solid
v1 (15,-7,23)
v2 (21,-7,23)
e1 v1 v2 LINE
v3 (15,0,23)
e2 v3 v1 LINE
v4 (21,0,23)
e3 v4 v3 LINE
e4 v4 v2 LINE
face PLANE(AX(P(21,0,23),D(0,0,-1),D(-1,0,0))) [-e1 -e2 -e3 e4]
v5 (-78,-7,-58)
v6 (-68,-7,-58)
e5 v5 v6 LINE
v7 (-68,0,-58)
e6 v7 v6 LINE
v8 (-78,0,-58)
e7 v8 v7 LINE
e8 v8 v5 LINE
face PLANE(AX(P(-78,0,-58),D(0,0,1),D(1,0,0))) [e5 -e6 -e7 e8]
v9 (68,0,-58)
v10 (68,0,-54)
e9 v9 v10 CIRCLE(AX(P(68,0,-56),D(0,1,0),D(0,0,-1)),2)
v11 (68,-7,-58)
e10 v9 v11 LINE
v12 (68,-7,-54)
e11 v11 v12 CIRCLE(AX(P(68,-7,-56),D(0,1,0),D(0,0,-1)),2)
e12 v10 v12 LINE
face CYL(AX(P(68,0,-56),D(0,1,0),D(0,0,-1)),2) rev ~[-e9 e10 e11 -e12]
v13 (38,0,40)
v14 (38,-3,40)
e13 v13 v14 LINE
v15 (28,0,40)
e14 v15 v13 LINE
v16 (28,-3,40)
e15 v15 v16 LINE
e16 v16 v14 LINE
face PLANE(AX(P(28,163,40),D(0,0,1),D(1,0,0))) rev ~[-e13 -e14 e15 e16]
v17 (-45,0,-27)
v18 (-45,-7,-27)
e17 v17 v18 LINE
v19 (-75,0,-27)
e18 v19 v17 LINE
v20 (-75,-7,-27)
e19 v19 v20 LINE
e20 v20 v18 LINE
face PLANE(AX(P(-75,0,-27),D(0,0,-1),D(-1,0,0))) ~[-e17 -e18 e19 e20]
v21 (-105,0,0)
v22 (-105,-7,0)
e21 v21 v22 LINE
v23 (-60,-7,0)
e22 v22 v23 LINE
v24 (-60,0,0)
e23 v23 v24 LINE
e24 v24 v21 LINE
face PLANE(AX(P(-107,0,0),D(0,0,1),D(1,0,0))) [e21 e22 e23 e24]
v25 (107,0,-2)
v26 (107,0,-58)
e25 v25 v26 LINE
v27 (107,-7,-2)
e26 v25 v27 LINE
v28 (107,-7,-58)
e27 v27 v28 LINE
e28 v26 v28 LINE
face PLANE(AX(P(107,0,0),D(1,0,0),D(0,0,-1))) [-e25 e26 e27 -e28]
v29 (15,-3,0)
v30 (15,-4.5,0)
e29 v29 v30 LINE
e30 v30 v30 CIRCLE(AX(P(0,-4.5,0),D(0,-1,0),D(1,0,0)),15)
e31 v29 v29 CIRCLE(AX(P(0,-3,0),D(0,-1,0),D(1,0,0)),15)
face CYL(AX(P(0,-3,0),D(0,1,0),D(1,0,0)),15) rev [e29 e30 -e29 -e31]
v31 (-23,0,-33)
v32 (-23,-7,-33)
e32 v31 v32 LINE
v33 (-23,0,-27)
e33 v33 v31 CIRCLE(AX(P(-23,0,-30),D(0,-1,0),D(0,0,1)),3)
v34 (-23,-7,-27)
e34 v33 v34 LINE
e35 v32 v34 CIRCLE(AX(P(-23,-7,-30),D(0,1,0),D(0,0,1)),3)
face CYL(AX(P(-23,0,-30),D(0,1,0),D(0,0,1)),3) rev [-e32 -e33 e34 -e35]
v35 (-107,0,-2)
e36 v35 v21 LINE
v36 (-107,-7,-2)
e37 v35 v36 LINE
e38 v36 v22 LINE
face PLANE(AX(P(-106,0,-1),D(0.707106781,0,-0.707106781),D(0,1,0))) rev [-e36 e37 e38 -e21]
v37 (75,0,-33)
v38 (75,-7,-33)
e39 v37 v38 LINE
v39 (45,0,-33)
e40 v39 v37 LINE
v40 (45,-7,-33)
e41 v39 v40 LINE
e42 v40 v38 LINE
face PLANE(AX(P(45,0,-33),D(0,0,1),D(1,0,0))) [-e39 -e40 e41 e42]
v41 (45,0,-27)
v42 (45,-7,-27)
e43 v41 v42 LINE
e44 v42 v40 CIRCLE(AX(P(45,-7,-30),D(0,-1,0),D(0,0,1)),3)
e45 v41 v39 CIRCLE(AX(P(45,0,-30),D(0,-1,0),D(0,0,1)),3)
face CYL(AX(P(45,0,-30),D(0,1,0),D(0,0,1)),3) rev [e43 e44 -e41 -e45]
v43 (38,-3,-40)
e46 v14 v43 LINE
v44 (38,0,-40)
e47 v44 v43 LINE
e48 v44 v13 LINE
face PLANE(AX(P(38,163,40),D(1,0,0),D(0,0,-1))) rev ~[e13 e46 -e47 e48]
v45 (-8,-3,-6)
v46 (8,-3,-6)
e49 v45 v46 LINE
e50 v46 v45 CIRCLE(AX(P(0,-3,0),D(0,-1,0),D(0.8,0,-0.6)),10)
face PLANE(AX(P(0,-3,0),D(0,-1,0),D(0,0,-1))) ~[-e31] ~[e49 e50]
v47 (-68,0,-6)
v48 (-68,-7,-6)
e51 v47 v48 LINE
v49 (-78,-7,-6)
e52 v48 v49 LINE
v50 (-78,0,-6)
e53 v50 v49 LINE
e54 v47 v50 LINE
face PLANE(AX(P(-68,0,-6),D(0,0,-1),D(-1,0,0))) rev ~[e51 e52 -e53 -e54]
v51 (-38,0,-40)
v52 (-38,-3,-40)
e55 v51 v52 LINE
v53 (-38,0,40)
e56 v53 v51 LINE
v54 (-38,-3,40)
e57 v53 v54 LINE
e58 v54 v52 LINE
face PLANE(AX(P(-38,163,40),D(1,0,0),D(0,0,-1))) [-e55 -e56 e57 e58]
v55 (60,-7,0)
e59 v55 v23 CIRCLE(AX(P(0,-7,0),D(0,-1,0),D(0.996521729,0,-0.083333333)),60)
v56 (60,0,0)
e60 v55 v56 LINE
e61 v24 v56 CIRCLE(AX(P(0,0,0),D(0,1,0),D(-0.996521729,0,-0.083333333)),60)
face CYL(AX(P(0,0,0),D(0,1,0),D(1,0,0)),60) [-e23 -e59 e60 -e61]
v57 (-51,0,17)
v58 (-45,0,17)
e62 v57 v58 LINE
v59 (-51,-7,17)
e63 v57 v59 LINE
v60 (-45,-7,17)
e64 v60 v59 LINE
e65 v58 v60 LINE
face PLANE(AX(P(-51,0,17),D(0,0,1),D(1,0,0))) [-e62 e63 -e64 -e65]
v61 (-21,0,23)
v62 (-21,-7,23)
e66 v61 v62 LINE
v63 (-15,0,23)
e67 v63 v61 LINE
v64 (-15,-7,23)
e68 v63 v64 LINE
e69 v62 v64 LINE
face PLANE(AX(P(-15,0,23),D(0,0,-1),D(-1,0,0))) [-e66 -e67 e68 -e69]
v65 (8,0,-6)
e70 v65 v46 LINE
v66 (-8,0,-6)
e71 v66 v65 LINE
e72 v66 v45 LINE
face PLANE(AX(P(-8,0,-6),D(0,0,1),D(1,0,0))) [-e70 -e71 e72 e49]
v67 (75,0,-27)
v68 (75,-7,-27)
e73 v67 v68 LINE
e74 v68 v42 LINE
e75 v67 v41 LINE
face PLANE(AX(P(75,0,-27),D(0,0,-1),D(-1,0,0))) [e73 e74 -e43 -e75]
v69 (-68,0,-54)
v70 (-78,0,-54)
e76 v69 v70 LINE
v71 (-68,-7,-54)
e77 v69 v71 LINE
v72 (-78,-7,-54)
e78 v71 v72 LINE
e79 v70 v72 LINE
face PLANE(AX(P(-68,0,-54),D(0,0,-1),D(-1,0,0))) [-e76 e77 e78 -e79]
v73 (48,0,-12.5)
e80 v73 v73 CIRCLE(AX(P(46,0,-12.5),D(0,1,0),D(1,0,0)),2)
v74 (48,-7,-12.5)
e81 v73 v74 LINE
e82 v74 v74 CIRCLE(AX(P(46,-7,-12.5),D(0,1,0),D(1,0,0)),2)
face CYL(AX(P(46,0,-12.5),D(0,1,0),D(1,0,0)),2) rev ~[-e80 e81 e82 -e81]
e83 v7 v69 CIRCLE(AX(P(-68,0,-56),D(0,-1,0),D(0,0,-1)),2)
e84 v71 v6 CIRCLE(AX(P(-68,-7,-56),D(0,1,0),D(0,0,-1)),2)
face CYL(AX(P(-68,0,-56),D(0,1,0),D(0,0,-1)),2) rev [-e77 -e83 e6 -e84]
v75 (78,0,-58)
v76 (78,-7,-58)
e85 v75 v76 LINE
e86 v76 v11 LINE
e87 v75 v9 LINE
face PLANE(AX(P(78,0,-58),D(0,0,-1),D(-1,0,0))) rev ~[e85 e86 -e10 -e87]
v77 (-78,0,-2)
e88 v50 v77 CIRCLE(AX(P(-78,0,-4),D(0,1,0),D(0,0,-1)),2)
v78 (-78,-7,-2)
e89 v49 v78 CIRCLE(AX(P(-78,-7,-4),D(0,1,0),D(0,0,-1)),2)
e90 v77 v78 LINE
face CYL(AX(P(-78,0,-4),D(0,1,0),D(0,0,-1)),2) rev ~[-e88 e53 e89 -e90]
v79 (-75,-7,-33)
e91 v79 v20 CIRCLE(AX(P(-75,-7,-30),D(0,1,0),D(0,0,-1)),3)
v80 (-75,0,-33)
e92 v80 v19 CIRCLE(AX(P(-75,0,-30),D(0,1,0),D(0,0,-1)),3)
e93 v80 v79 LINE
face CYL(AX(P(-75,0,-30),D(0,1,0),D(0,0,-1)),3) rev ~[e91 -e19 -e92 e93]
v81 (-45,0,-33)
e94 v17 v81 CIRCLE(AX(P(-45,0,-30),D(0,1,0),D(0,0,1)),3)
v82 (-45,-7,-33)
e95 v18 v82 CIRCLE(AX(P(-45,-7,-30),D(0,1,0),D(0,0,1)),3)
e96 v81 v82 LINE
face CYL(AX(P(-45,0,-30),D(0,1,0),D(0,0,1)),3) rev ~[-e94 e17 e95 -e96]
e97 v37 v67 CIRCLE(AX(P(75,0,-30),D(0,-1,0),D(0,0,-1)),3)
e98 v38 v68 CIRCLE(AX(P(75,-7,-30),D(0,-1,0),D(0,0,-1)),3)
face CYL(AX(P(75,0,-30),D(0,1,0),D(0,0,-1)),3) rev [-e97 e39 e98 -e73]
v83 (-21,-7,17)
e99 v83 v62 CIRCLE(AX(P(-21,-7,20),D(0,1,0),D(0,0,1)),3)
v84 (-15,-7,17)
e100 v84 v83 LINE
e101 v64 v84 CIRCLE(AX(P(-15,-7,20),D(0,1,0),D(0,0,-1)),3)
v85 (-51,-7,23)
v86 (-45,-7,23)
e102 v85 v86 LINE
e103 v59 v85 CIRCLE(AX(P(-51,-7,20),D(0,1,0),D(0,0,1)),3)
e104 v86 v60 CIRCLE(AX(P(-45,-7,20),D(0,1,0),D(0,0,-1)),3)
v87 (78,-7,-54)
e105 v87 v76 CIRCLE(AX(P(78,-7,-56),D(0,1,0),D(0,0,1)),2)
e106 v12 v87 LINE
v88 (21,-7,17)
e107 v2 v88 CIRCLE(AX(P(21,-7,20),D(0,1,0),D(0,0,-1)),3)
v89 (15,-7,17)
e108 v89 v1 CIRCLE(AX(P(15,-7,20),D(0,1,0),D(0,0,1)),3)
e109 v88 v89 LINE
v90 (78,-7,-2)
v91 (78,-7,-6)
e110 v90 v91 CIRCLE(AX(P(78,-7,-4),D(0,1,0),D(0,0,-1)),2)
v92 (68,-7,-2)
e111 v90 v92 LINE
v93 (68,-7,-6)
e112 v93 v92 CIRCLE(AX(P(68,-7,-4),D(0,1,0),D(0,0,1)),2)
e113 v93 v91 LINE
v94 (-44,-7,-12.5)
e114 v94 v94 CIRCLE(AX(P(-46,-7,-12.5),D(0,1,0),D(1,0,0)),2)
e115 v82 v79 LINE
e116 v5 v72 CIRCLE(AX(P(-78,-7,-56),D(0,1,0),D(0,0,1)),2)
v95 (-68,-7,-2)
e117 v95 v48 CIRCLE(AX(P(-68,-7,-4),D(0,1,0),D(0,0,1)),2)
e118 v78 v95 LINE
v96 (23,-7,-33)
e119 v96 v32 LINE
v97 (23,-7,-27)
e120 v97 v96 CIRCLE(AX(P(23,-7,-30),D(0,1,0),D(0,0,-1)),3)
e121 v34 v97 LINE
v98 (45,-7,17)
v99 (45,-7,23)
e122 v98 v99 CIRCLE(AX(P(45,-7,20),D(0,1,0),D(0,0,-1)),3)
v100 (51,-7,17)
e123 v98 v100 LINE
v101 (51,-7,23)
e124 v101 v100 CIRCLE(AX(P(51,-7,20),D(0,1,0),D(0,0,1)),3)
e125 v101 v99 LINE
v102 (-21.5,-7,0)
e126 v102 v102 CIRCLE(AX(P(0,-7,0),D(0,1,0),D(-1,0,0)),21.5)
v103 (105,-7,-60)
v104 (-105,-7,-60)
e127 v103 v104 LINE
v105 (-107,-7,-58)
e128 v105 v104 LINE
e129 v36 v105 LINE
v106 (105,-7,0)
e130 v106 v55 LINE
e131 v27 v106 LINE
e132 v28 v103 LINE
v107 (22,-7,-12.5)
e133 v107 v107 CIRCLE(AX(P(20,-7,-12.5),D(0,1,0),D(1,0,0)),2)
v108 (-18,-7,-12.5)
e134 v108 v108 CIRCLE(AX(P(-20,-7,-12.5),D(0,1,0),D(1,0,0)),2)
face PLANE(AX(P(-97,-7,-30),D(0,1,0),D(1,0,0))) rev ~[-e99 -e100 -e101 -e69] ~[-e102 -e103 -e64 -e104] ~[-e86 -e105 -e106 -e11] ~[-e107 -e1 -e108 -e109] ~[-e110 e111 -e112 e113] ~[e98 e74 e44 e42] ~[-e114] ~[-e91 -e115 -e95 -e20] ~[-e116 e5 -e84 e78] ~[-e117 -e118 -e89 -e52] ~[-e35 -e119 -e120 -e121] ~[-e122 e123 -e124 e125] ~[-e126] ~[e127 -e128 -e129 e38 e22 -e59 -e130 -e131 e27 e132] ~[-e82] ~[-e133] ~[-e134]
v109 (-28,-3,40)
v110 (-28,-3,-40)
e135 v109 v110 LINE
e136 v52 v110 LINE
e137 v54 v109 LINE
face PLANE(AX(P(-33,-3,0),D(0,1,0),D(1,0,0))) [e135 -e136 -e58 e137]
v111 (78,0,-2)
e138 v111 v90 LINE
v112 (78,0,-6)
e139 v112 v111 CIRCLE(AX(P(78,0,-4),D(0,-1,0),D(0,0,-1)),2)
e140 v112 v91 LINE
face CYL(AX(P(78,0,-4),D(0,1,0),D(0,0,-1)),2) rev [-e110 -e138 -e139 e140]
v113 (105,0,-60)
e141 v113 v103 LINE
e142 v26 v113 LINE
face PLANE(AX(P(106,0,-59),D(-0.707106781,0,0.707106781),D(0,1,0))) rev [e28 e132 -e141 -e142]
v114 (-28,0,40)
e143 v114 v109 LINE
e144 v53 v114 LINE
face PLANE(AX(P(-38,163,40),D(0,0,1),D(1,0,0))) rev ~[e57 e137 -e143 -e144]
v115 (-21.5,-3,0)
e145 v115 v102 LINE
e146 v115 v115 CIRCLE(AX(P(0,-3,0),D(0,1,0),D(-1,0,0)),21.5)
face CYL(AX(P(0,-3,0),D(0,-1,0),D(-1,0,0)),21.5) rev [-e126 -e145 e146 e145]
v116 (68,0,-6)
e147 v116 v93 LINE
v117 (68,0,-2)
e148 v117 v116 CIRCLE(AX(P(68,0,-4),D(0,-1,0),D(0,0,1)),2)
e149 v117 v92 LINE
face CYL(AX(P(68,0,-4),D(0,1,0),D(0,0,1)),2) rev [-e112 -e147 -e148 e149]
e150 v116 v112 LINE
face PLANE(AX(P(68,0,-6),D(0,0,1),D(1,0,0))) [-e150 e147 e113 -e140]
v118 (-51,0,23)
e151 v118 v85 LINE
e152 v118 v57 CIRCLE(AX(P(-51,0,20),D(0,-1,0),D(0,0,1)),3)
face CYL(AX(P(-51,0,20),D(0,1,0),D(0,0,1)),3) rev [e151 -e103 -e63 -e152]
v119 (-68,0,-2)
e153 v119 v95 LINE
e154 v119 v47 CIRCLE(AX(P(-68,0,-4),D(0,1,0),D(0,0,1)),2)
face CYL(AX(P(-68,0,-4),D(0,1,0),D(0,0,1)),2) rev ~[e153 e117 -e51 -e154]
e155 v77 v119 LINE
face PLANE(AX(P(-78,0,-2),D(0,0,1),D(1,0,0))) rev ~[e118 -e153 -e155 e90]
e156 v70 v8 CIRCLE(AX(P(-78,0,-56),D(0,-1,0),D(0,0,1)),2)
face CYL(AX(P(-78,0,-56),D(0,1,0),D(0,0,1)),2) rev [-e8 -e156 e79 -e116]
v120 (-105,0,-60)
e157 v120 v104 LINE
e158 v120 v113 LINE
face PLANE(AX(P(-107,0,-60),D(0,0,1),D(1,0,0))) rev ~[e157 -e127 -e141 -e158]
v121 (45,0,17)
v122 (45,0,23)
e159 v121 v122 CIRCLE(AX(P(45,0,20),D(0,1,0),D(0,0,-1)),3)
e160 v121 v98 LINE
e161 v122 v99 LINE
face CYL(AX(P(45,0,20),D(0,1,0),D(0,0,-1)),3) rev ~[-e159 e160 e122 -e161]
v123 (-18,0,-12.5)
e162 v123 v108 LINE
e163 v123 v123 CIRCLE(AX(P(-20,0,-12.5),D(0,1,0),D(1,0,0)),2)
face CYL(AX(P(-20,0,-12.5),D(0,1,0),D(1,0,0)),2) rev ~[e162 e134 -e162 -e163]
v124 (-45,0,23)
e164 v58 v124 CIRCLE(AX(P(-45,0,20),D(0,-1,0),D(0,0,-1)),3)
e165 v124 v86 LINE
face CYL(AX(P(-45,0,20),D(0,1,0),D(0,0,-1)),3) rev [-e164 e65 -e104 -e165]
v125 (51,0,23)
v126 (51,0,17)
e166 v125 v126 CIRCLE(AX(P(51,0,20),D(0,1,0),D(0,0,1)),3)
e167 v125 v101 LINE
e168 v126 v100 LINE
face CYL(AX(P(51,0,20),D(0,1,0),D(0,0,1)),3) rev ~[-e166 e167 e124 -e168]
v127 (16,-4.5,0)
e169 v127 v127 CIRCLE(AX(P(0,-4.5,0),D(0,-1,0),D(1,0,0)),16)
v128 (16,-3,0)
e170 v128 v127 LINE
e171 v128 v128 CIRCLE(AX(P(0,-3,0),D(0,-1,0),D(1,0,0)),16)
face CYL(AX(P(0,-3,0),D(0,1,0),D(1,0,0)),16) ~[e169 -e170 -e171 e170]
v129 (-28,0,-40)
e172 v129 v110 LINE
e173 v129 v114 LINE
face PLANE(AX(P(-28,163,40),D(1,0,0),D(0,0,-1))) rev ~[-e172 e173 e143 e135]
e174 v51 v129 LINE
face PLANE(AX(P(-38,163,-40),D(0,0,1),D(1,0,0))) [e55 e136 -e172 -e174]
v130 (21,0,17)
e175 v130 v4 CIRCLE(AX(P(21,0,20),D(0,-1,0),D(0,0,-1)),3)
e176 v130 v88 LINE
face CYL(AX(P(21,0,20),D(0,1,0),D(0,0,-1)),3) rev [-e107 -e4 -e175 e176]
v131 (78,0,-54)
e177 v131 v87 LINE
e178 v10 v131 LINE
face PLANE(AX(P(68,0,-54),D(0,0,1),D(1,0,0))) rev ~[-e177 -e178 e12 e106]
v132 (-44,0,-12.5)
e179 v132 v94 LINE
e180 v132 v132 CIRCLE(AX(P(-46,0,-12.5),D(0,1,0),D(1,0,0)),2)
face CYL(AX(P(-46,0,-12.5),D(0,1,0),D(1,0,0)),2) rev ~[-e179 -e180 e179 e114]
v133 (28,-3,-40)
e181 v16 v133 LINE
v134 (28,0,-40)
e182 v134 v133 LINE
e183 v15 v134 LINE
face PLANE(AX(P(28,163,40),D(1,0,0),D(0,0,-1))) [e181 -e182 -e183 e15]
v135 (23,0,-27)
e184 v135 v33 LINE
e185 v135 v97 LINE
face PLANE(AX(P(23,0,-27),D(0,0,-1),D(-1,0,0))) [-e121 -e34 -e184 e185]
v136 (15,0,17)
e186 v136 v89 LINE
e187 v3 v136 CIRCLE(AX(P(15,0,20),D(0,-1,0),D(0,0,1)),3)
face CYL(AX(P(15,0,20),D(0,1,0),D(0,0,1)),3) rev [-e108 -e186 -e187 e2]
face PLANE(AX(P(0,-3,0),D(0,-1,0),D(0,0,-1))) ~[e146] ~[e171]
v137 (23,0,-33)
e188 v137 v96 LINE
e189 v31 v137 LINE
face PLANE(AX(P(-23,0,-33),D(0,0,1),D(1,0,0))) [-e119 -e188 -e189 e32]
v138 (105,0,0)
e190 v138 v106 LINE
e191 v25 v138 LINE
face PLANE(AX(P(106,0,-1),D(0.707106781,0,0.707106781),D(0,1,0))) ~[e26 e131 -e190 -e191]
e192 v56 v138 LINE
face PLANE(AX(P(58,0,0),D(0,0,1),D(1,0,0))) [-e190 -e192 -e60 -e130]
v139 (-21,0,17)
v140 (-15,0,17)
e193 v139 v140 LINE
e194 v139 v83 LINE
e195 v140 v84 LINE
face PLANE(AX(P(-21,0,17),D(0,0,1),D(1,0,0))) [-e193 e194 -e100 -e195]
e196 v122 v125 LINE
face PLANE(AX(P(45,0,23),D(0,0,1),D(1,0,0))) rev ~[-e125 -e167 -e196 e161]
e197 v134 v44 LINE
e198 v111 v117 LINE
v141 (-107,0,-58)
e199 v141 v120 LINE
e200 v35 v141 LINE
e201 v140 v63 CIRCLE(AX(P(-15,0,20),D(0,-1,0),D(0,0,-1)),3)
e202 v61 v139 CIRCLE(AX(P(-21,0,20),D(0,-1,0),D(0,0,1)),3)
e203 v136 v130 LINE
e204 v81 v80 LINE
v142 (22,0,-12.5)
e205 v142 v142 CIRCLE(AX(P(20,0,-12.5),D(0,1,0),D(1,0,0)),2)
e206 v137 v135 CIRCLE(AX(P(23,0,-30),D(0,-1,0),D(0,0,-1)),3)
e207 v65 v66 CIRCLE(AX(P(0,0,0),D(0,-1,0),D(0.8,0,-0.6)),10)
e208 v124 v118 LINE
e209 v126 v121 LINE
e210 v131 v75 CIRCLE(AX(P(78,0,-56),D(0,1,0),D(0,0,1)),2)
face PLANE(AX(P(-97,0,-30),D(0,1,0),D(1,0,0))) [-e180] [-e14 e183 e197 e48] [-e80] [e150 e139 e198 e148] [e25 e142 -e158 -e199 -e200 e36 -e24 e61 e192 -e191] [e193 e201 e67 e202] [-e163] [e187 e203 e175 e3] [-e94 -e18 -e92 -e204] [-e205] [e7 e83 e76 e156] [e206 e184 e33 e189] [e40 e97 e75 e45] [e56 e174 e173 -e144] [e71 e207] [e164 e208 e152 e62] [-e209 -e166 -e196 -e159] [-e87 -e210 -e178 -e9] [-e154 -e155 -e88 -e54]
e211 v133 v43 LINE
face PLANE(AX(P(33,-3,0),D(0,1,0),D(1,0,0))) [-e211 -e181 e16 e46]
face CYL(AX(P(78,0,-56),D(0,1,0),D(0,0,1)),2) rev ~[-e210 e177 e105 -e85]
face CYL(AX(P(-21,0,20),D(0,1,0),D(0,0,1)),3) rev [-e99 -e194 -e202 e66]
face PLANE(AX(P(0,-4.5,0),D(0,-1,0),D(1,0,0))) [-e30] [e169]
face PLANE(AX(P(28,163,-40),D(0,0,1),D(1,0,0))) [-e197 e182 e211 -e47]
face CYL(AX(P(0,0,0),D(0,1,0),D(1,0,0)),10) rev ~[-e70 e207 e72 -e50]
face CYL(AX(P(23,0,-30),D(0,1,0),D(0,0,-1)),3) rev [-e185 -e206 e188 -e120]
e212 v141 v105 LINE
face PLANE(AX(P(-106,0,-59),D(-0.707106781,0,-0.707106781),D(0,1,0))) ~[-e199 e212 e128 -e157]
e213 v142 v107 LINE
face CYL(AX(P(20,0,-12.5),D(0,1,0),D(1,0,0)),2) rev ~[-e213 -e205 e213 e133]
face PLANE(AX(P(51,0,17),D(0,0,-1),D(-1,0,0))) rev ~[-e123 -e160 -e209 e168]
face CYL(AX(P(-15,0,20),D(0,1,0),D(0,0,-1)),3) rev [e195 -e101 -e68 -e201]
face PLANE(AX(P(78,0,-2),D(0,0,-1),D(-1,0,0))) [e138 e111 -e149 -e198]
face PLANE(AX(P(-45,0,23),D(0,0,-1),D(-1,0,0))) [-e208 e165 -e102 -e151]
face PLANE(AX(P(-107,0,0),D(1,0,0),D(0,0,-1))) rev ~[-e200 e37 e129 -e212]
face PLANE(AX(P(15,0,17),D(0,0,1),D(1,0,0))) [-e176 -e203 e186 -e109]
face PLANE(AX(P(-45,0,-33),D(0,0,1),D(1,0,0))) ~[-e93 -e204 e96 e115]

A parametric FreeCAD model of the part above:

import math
import FreeCAD as App
import Part
import Sketcher
from FreeCAD import Vector


def edges_at(feature, points):
    """Names of the edges that pass closest to the given points."""
    edges = feature.Shape.Edges
    near = lambda p: min(range(len(edges)), key=lambda i: edges[i].distToShape(Part.Vertex(*p))[0])
    return sorted({f"Edge{near(p) + 1}" for p in points})

doc = App.newDocument("Part")
body = doc.addObject("PartDesign::Body", "Body")

sketch1 = body.newObject("Sketcher::SketchObject", "Sketch")
sketch1.AttachmentSupport = (doc.getObject("XZ_Plane"), [""])
sketch1.MapMode = "FlatFace"
sketch1.addGeometry(Part.Circle(Vector(0, 0, 0), Vector(0, 0, 1), 60), False)
sketch1.addConstraint([
    Sketcher.Constraint("Coincident", 0, 3, -1, 1),
    Sketcher.Constraint("Diameter", 0, 120.0),
])
pad1 = body.newObject("PartDesign::Pad", "Pad")
pad1.Profile = sketch1
pad1.Length = 7

sketch2 = body.newObject("Sketcher::SketchObject", "Sketch001")
sketch2.AttachmentSupport = (doc.getObject("XZ_Plane"), [""])
sketch2.MapMode = "FlatFace"
sketch2.addGeometry([
    Part.LineSegment(Vector(-38, -40, 0), Vector(-38, 40, 0)),
    Part.LineSegment(Vector(-38, 40, 0), Vector(-28, 40, 0)),
    Part.LineSegment(Vector(-28, 40, 0), Vector(-28, -40, 0)),
    Part.LineSegment(Vector(-28, -40, 0), Vector(-38, -40, 0)),
    Part.LineSegment(Vector(28, -40, 0), Vector(28, 40, 0)),
    Part.LineSegment(Vector(28, 40, 0), Vector(38, 40, 0)),
    Part.LineSegment(Vector(38, 40, 0), Vector(38, -40, 0)),
    Part.LineSegment(Vector(38, -40, 0), Vector(28, -40, 0)),
], False)
sketch2.addConstraint([
    Sketcher.Constraint("Coincident", 0, 2, 1, 1),
    Sketcher.Constraint("Coincident", 1, 2, 2, 1),
    Sketcher.Constraint("Coincident", 2, 2, 3, 1),
    Sketcher.Constraint("Coincident", 3, 2, 0, 1),
    Sketcher.Constraint("Coincident", 4, 2, 5, 1),
    Sketcher.Constraint("Coincident", 5, 2, 6, 1),
    Sketcher.Constraint("Coincident", 6, 2, 7, 1),
    Sketcher.Constraint("Coincident", 7, 2, 4, 1),
    Sketcher.Constraint("Vertical", 0),
    Sketcher.Constraint("Horizontal", 1),
    Sketcher.Constraint("Vertical", 2),
    Sketcher.Constraint("Horizontal", 3),
    Sketcher.Constraint("Vertical", 4),
    Sketcher.Constraint("Horizontal", 5),
    Sketcher.Constraint("Vertical", 6),
    Sketcher.Constraint("Horizontal", 7),
    Sketcher.Constraint("Symmetric", 2, 2, 4, 2, -1, 1),
    Sketcher.Constraint("Symmetric", 0, 2, 6, 2, -1, 1),
    Sketcher.Constraint("Horizontal", 1, 2, 4, 2),
    Sketcher.Constraint("DistanceX", 1, 1, 1, 2, 10.0),
    Sketcher.Constraint("DistanceY", 0, 1, 0, 2, 80.0),
    Sketcher.Constraint("DistanceX", 0, 2, -1, 1, 38.0),
])
pad2 = body.newObject("PartDesign::Pad", "Pad001")
pad2.Profile = sketch2
pad2.Length = 163
pad2.Reversed = True

sketch3 = body.newObject("Sketcher::SketchObject", "Sketch002")
sketch3.AttachmentSupport = (doc.getObject("XZ_Plane"), [""])
sketch3.MapMode = "FlatFace"
sketch3.addGeometry([
    Part.LineSegment(Vector(-90, -55, 0), Vector(-90, -5, 0)),
    Part.LineSegment(Vector(-90, -5, 0), Vector(90, -5, 0)),
    Part.LineSegment(Vector(90, -5, 0), Vector(90, -55, 0)),
    Part.LineSegment(Vector(90, -55, 0), Vector(-90, -55, 0)),
], False)
sketch3.addConstraint([
    Sketcher.Constraint("Coincident", 0, 2, 1, 1),
    Sketcher.Constraint("Coincident", 1, 2, 2, 1),
    Sketcher.Constraint("Coincident", 2, 2, 3, 1),
    Sketcher.Constraint("Coincident", 3, 2, 0, 1),
    Sketcher.Constraint("Vertical", 0),
    Sketcher.Constraint("Horizontal", 1),
    Sketcher.Constraint("Vertical", 2),
    Sketcher.Constraint("Horizontal", 3),
    Sketcher.Constraint("DistanceX", 1, 1, 1, 2, 180.0),
    Sketcher.Constraint("DistanceY", 0, 1, 0, 2, 50.0),
    Sketcher.Constraint("DistanceX", 0, 2, -1, 1, 90.0),
    Sketcher.Constraint("DistanceY", 0, 2, -1, 1, 5.0),
])
pad3 = body.newObject("PartDesign::Pad", "Pad002")
pad3.Profile = sketch3
pad3.Length = 7
doc.recompute()

chamfer = body.newObject("PartDesign::Chamfer", "Chamfer")
chamfer.Base = (pad3, edges_at(pad3, [
    (90, -3.5, -5),
    (-90, -3.5, -55),
    (90, -3.5, -55),
    (-90, -3.5, -5),
]))
chamfer.Size = 2

sketch4 = body.newObject("Sketcher::SketchObject", "Sketch003")
sketch4.AttachmentSupport = (doc.getObject("XZ_Plane"), [""])
sketch4.MapMode = "FlatFace"
sketch4.addGeometry([
    Part.LineSegment(Vector(75, -33, 0), Vector(45, -33, 0)),
    Part.ArcOfCircle(Part.Circle(Vector(45, -30, 0), Vector(0, 0, 1), 3), math.radians(90), math.radians(270)),
    Part.LineSegment(Vector(45, -27, 0), Vector(75, -27, 0)),
    Part.ArcOfCircle(Part.Circle(Vector(75, -30, 0), Vector(0, 0, 1), 3), math.radians(-90), math.radians(90)),
], False)
sketch4.addConstraint([
    Sketcher.Constraint("Tangent", 0, 2, 1, 2),
    Sketcher.Constraint("Tangent", 1, 1, 2, 1),
    Sketcher.Constraint("Tangent", 2, 2, 3, 2),
    Sketcher.Constraint("Tangent", 3, 1, 0, 1),
    Sketcher.Constraint("Horizontal", 0),
    Sketcher.Constraint("Horizontal", 2),
    Sketcher.Constraint("Radius", 1, 3.0),
    Sketcher.Constraint("DistanceX", 0, 2, 0, 1, 30.0),
    Sketcher.Constraint("DistanceX", -1, 1, 1, 3, 45.0),
    Sketcher.Constraint("DistanceY", 1, 3, -1, 1, 30.0),
])
pocket1 = body.newObject("PartDesign::Pocket", "Pocket")
pocket1.Profile = sketch4
pocket1.Length = 7
pocket1.Reversed = True
doc.recompute()

mirrored = body.newObject("PartDesign::Mirrored", "Mirrored")
mirrored.Originals = [pocket1]
mirrored.MirrorPlane = (doc.getObject("YZ_Plane"), [""])
body.Tip = mirrored

sketch5 = body.newObject("Sketcher::SketchObject", "Sketch004")
sketch5.AttachmentSupport = (doc.getObject("XZ_Plane"), [""])
sketch5.MapMode = "FlatFace"
sketch5.addGeometry(Part.Circle(Vector(0, 0, 0), Vector(0, 0, 1), 10), False)
sketch5.addConstraint([
    Sketcher.Constraint("Coincident", 0, 3, -1, 1),
    Sketcher.Constraint("Diameter", 0, 20.0),
])
pocket2 = body.newObject("PartDesign::Pocket", "Pocket001")
pocket2.Profile = sketch5
pocket2.Type = "UpToFirst"
pocket2.Reversed = True

sketch6 = body.newObject("Sketcher::SketchObject", "Sketch005")
sketch6.AttachmentSupport = (doc.getObject("XY_Plane"), [""])
sketch6.MapMode = "FlatFace"
sketch6.addGeometry([
    Part.LineSegment(Vector(0, -7, 0), Vector(0, -3.5, 0)),
    Part.LineSegment(Vector(0, -3.5, 0), Vector(-14.5, -3.5, 0)),
    Part.LineSegment(Vector(-14.5, -3.5, 0), Vector(-14.5, -3, 0)),
    Part.LineSegment(Vector(-14.5, -3, 0), Vector(-21.5, -3, 0)),
    Part.LineSegment(Vector(-21.5, -3, 0), Vector(-21.5, -7, 0)),
    Part.LineSegment(Vector(-21.5, -7, 0), Vector(0, -7, 0)),
], False)
sketch6.addConstraint([
    Sketcher.Constraint("Coincident", 0, 2, 1, 1),
    Sketcher.Constraint("Coincident", 1, 2, 2, 1),
    Sketcher.Constraint("Coincident", 2, 2, 3, 1),
    Sketcher.Constraint("Coincident", 3, 2, 4, 1),
    Sketcher.Constraint("Coincident", 4, 2, 5, 1),
    Sketcher.Constraint("Coincident", 5, 2, 0, 1),
    Sketcher.Constraint("Vertical", 0),
    Sketcher.Constraint("Horizontal", 1),
    Sketcher.Constraint("Vertical", 2),
    Sketcher.Constraint("Horizontal", 3),
    Sketcher.Constraint("Vertical", 4),
    Sketcher.Constraint("Horizontal", 5),
    Sketcher.Constraint("PointOnObject", 0, 2, -2),
    Sketcher.Constraint("DistanceX", 3, 2, 3, 1, 7.0),
    Sketcher.Constraint("DistanceY", 4, 2, 4, 1, 4.0),
    Sketcher.Constraint("DistanceX", 1, 2, 1, 1, 14.5),
    Sketcher.Constraint("DistanceY", 0, 1, 0, 2, 3.5),
    Sketcher.Constraint("DistanceY", 2, 2, -1, 1, 3.0),
])
groove = body.newObject("PartDesign::Groove", "Groove")
groove.Profile = sketch6
groove.ReferenceAxis = (sketch6, ["V_Axis"])
groove.Angle = 360

sketch7 = body.newObject("Sketcher::SketchObject", "Sketch006")
sketch7.AttachmentSupport = (doc.getObject("XZ_Plane"), [""])
sketch7.MapMode = "FlatFace"
sketch7.addGeometry([
    Part.ArcOfCircle(Part.Circle(Vector(0, 0, 0), Vector(0, 0, 1), 10), math.radians(-143), math.radians(-37)),
    Part.LineSegment(Vector(-8, -6, 0), Vector(8, -6, 0)),
], False)
sketch7.addConstraint([
    Sketcher.Constraint("Coincident", 0, 1, 1, 1),
    Sketcher.Constraint("Coincident", 1, 2, 0, 2),
    Sketcher.Constraint("Horizontal", 1),
    Sketcher.Constraint("Coincident", 0, 3, -1, 1),
    Sketcher.Constraint("Radius", 0, 10.0),
    Sketcher.Constraint("DistanceX", 1, 1, 1, 2, 16.0),
])
pad4 = body.newObject("PartDesign::Pad", "Pad003")
pad4.Profile = sketch7
pad4.Length = 3

sketch8 = body.newObject("Sketcher::SketchObject", "Sketch007")
sketch8.AttachmentSupport = (doc.getObject("XZ_Plane"), [""])
sketch8.MapMode = "FlatFace"
sketch8.AttachmentOffset = App.Placement(Vector(0, 0, -163), App.Rotation())
sketch8.addGeometry([
    Part.LineSegment(Vector(28, -40, 0), Vector(28, 40, 0)),
    Part.LineSegment(Vector(28, 40, 0), Vector(38, 40, 0)),
    Part.LineSegment(Vector(38, 40, 0), Vector(38, -40, 0)),
    Part.LineSegment(Vector(38, -40, 0), Vector(28, -40, 0)),
    Part.LineSegment(Vector(-38, -40, 0), Vector(-38, 40, 0)),
    Part.LineSegment(Vector(-38, 40, 0), Vector(-28, 40, 0)),
    Part.LineSegment(Vector(-28, 40, 0), Vector(-28, -40, 0)),
    Part.LineSegment(Vector(-28, -40, 0), Vector(-38, -40, 0)),
], False)
sketch8.addConstraint([
    Sketcher.Constraint("Coincident", 0, 2, 1, 1),
    Sketcher.Constraint("Coincident", 1, 2, 2, 1),
    Sketcher.Constraint("Coincident", 2, 2, 3, 1),
    Sketcher.Constraint("Coincident", 3, 2, 0, 1),
    Sketcher.Constraint("Coincident", 4, 2, 5, 1),
    Sketcher.Constraint("Coincident", 5, 2, 6, 1),
    Sketcher.Constraint("Coincident", 6, 2, 7, 1),
    Sketcher.Constraint("Coincident", 7, 2, 4, 1),
    Sketcher.Constraint("Vertical", 0),
    Sketcher.Constraint("Horizontal", 1),
    Sketcher.Constraint("Vertical", 2),
    Sketcher.Constraint("Horizontal", 3),
    Sketcher.Constraint("Vertical", 4),
    Sketcher.Constraint("Horizontal", 5),
    Sketcher.Constraint("Vertical", 6),
    Sketcher.Constraint("Horizontal", 7),
    Sketcher.Constraint("Symmetric", 2, 2, 4, 2, -1, 1),
    Sketcher.Constraint("Symmetric", 0, 2, 6, 2, -1, 1),
    Sketcher.Constraint("Horizontal", 1, 2, 4, 2),
    Sketcher.Constraint("DistanceX", 1, 1, 1, 2, 10.0),
    Sketcher.Constraint("DistanceY", 0, 1, 0, 2, 80.0),
    Sketcher.Constraint("DistanceX", -1, 1, 0, 2, 28.0),
])
pocket3 = body.newObject("PartDesign::Pocket", "Pocket002")
pocket3.Profile = sketch8
pocket3.Length = 166
pocket3.Reversed = True

sketch9 = body.newObject("Sketcher::SketchObject", "Sketch008")
sketch9.AttachmentSupport = (doc.getObject("XZ_Plane"), [""])
sketch9.MapMode = "FlatFace"
sketch9.addGeometry([
    Part.LineSegment(Vector(-45, 17, 0), Vector(-51, 17, 0)),
    Part.ArcOfCircle(Part.Circle(Vector(-51, 20, 0), Vector(0, 0, 1), 3), math.radians(90), math.radians(270)),
    Part.LineSegment(Vector(-51, 23, 0), Vector(-45, 23, 0)),
    Part.ArcOfCircle(Part.Circle(Vector(-45, 20, 0), Vector(0, 0, 1), 3), math.radians(-90), math.radians(90)),
], False)
sketch9.addConstraint([
    Sketcher.Constraint("Tangent", 0, 2, 1, 2),
    Sketcher.Constraint("Tangent", 1, 1, 2, 1),
    Sketcher.Constraint("Tangent", 2, 2, 3, 2),
    Sketcher.Constraint("Tangent", 3, 1, 0, 1),
    Sketcher.Constraint("Horizontal", 0),
    Sketcher.Constraint("Horizontal", 2),
    Sketcher.Constraint("Radius", 1, 3.0),
    Sketcher.Constraint("DistanceX", 0, 2, 0, 1, 6.0),
    Sketcher.Constraint("DistanceX", 1, 3, -1, 1, 51.0),
    Sketcher.Constraint("DistanceY", -1, 1, 1, 3, 20.0),
])
pocket4 = body.newObject("PartDesign::Pocket", "Pocket003")
pocket4.Profile = sketch9
pocket4.Type = "UpToFirst"
pocket4.Reversed = True

sketch10 = body.newObject("Sketcher::SketchObject", "Sketch009")
sketch10.AttachmentSupport = (doc.getObject("XZ_Plane"), [""])
sketch10.MapMode = "FlatFace"
sketch10.addGeometry([
    Part.LineSegment(Vector(51, 17, 0), Vector(45, 17, 0)),
    Part.ArcOfCircle(Part.Circle(Vector(45, 20, 0), Vector(0, 0, 1), 3), math.radians(90), math.radians(270)),
    Part.LineSegment(Vector(45, 23, 0), Vector(51, 23, 0)),
    Part.ArcOfCircle(Part.Circle(Vector(51, 20, 0), Vector(0, 0, 1), 3), math.radians(-90), math.radians(90)),
], False)
sketch10.addConstraint([
    Sketcher.Constraint("Tangent", 0, 2, 1, 2),
    Sketcher.Constraint("Tangent", 1, 1, 2, 1),
    Sketcher.Constraint("Tangent", 2, 2, 3, 2),
    Sketcher.Constraint("Tangent", 3, 1, 0, 1),
    Sketcher.Constraint("Horizontal", 0),
    Sketcher.Constraint("Horizontal", 2),
    Sketcher.Constraint("Radius", 1, 3.0),
    Sketcher.Constraint("DistanceX", 0, 2, 0, 1, 6.0),
    Sketcher.Constraint("DistanceX", -1, 1, 1, 3, 45.0),
    Sketcher.Constraint("DistanceY", -1, 1, 1, 3, 20.0),
])
pocket5 = body.newObject("PartDesign::Pocket", "Pocket004")
pocket5.Profile = sketch10
pocket5.Type = "UpToFirst"
pocket5.Reversed = True

sketch11 = body.newObject("Sketcher::SketchObject", "Sketch010")
sketch11.AttachmentSupport = (doc.getObject("XZ_Plane"), [""])
sketch11.MapMode = "FlatFace"
sketch11.addGeometry([
    Part.LineSegment(Vector(23, -33, 0), Vector(-23, -33, 0)),
    Part.ArcOfCircle(Part.Circle(Vector(-23, -30, 0), Vector(0, 0, 1), 3), math.radians(90), math.radians(270)),
    Part.LineSegment(Vector(-23, -27, 0), Vector(23, -27, 0)),
    Part.ArcOfCircle(Part.Circle(Vector(23, -30, 0), Vector(0, 0, 1), 3), math.radians(-90), math.radians(90)),
], False)
sketch11.addConstraint([
    Sketcher.Constraint("Tangent", 0, 2, 1, 2),
    Sketcher.Constraint("Tangent", 1, 1, 2, 1),
    Sketcher.Constraint("Tangent", 2, 2, 3, 2),
    Sketcher.Constraint("Tangent", 3, 1, 0, 1),
    Sketcher.Constraint("Horizontal", 0),
    Sketcher.Constraint("Horizontal", 2),
    Sketcher.Constraint("Radius", 1, 3.0),
    Sketcher.Constraint("DistanceX", 0, 2, 0, 1, 46.0),
    Sketcher.Constraint("DistanceX", 1, 3, -1, 1, 23.0),
    Sketcher.Constraint("DistanceY", 1, 3, -1, 1, 30.0),
])
pocket6 = body.newObject("PartDesign::Pocket", "Pocket005")
pocket6.Profile = sketch11
pocket6.Type = "UpToFirst"
pocket6.Reversed = True

sketch12 = body.newObject("Sketcher::SketchObject", "Sketch011")
sketch12.AttachmentSupport = (doc.getObject("XZ_Plane"), [""])
sketch12.MapMode = "FlatFace"
sketch12.addGeometry([
    Part.LineSegment(Vector(-21, 23, 0), Vector(-15, 23, 0)),
    Part.ArcOfCircle(Part.Circle(Vector(-15, 20, 0), Vector(0, 0, 1), 3), math.radians(-90), math.radians(90)),
    Part.LineSegment(Vector(-15, 17, 0), Vector(-21, 17, 0)),
    Part.ArcOfCircle(Part.Circle(Vector(-21, 20, 0), Vector(0, 0, 1), 3), math.radians(90), math.radians(270)),
], False)
sketch12.addConstraint([
    Sketcher.Constraint("Tangent", 0, 2, 1, 2),
    Sketcher.Constraint("Tangent", 1, 1, 2, 1),
    Sketcher.Constraint("Tangent", 2, 2, 3, 2),
    Sketcher.Constraint("Tangent", 3, 1, 0, 1),
    Sketcher.Constraint("Horizontal", 0),
    Sketcher.Constraint("Horizontal", 2),
    Sketcher.Constraint("Radius", 1, 3.0),
    Sketcher.Constraint("DistanceX", 0, 1, 0, 2, 6.0),
    Sketcher.Constraint("DistanceX", 1, 3, -1, 1, 15.0),
    Sketcher.Constraint("DistanceY", -1, 1, 1, 3, 20.0),
])
pocket7 = body.newObject("PartDesign::Pocket", "Pocket006")
pocket7.Profile = sketch12
pocket7.Type = "UpToFirst"
pocket7.Reversed = True

sketch13 = body.newObject("Sketcher::SketchObject", "Sketch012")
sketch13.AttachmentSupport = (doc.getObject("XZ_Plane"), [""])
sketch13.MapMode = "FlatFace"
sketch13.addGeometry([
    Part.LineSegment(Vector(21, 17, 0), Vector(15, 17, 0)),
    Part.ArcOfCircle(Part.Circle(Vector(15, 20, 0), Vector(0, 0, 1), 3), math.radians(90), math.radians(270)),
    Part.LineSegment(Vector(15, 23, 0), Vector(21, 23, 0)),
    Part.ArcOfCircle(Part.Circle(Vector(21, 20, 0), Vector(0, 0, 1), 3), math.radians(-90), math.radians(90)),
], False)
sketch13.addConstraint([
    Sketcher.Constraint("Tangent", 0, 2, 1, 2),
    Sketcher.Constraint("Tangent", 1, 1, 2, 1),
    Sketcher.Constraint("Tangent", 2, 2, 3, 2),
    Sketcher.Constraint("Tangent", 3, 1, 0, 1),
    Sketcher.Constraint("Horizontal", 0),
    Sketcher.Constraint("Horizontal", 2),
    Sketcher.Constraint("Radius", 1, 3.0),
    Sketcher.Constraint("DistanceX", 0, 2, 0, 1, 6.0),
    Sketcher.Constraint("DistanceX", -1, 1, 1, 3, 15.0),
    Sketcher.Constraint("DistanceY", -1, 1, 1, 3, 20.0),
])
pocket8 = body.newObject("PartDesign::Pocket", "Pocket007")
pocket8.Profile = sketch13
pocket8.Type = "UpToFirst"
pocket8.Reversed = True

sketch14 = body.newObject("Sketcher::SketchObject", "Sketch013")
sketch14.AttachmentSupport = (doc.getObject("XZ_Plane"), [""])
sketch14.MapMode = "FlatFace"
sketch14.addGeometry(Part.Circle(Vector(-46, -12.5, 0), Vector(0, 0, 1), 2), False)
sketch14.addConstraint([
    Sketcher.Constraint("Diameter", 0, 4.0),
    Sketcher.Constraint("DistanceX", 0, 3, -1, 1, 46.0),
    Sketcher.Constraint("DistanceY", 0, 3, -1, 1, 12.5),
])
pocket9 = body.newObject("PartDesign::Pocket", "Pocket008")
pocket9.Profile = sketch14
pocket9.Type = "UpToFirst"
pocket9.Reversed = True

sketch15 = body.newObject("Sketcher::SketchObject", "Sketch014")
sketch15.AttachmentSupport = (doc.getObject("XZ_Plane"), [""])
sketch15.MapMode = "FlatFace"
sketch15.addGeometry(Part.Circle(Vector(-20, -12.5, 0), Vector(0, 0, 1), 2), False)
sketch15.addConstraint([
    Sketcher.Constraint("Diameter", 0, 4.0),
    Sketcher.Constraint("DistanceX", 0, 3, -1, 1, 20.0),
    Sketcher.Constraint("DistanceY", 0, 3, -1, 1, 12.5),
])
pocket10 = body.newObject("PartDesign::Pocket", "Pocket009")
pocket10.Profile = sketch15
pocket10.Type = "UpToFirst"
pocket10.Reversed = True

sketch16 = body.newObject("Sketcher::SketchObject", "Sketch015")
sketch16.AttachmentSupport = (doc.getObject("XZ_Plane"), [""])
sketch16.MapMode = "FlatFace"
sketch16.addGeometry(Part.Circle(Vector(20, -12.5, 0), Vector(0, 0, 1), 2), False)
sketch16.addConstraint([
    Sketcher.Constraint("Diameter", 0, 4.0),
    Sketcher.Constraint("DistanceX", -1, 1, 0, 3, 20.0),
    Sketcher.Constraint("DistanceY", 0, 3, -1, 1, 12.5),
])
pocket11 = body.newObject("PartDesign::Pocket", "Pocket010")
pocket11.Profile = sketch16
pocket11.Type = "UpToFirst"
pocket11.Reversed = True

sketch17 = body.newObject("Sketcher::SketchObject", "Sketch016")
sketch17.AttachmentSupport = (doc.getObject("XZ_Plane"), [""])
sketch17.MapMode = "FlatFace"
sketch17.addGeometry(Part.Circle(Vector(46, -12.5, 0), Vector(0, 0, 1), 2), False)
sketch17.addConstraint([
    Sketcher.Constraint("Diameter", 0, 4.0),
    Sketcher.Constraint("DistanceX", -1, 1, 0, 3, 46.0),
    Sketcher.Constraint("DistanceY", 0, 3, -1, 1, 12.5),
])
pocket12 = body.newObject("PartDesign::Pocket", "Pocket011")
pocket12.Profile = sketch17
pocket12.Type = "UpToFirst"
pocket12.Reversed = True

sketch18 = body.newObject("Sketcher::SketchObject", "Sketch017")
sketch18.AttachmentSupport = (doc.getObject("XZ_Plane"), [""])
sketch18.MapMode = "FlatFace"
sketch18.addGeometry([
    Part.LineSegment(Vector(-90, -60, 0), Vector(-90, -50, 0)),
    Part.LineSegment(Vector(-90, -50, 0), Vector(90, -50, 0)),
    Part.LineSegment(Vector(90, -50, 0), Vector(90, -60, 0)),
    Part.LineSegment(Vector(90, -60, 0), Vector(-90, -60, 0)),
    Part.LineSegment(Vector(58, -7, 0), Vector(58, 0, 0)),
    Part.LineSegment(Vector(58, 0, 0), Vector(90, 0, 0)),
    Part.LineSegment(Vector(90, 0, 0), Vector(90, -7, 0)),
    Part.LineSegment(Vector(90, -7, 0), Vector(58, -7, 0)),
    Part.LineSegment(Vector(-90, -7, 0), Vector(-90, 0, 0)),
    Part.LineSegment(Vector(-90, 0, 0), Vector(-58, 0, 0)),
    Part.LineSegment(Vector(-58, 0, 0), Vector(-58, -7, 0)),
    Part.LineSegment(Vector(-58, -7, 0), Vector(-90, -7, 0)),
], False)
sketch18.addConstraint([
    Sketcher.Constraint("Coincident", 0, 2, 1, 1),
    Sketcher.Constraint("Coincident", 1, 2, 2, 1),
    Sketcher.Constraint("Coincident", 2, 2, 3, 1),
    Sketcher.Constraint("Coincident", 3, 2, 0, 1),
    Sketcher.Constraint("Coincident", 4, 2, 5, 1),
    Sketcher.Constraint("Coincident", 5, 2, 6, 1),
    Sketcher.Constraint("Coincident", 6, 2, 7, 1),
    Sketcher.Constraint("Coincident", 7, 2, 4, 1),
    Sketcher.Constraint("Coincident", 8, 2, 9, 1),
    Sketcher.Constraint("Coincident", 9, 2, 10, 1),
    Sketcher.Constraint("Coincident", 10, 2, 11, 1),
    Sketcher.Constraint("Coincident", 11, 2, 8, 1),
    Sketcher.Constraint("Vertical", 0),
    Sketcher.Constraint("Horizontal", 1),
    Sketcher.Constraint("Vertical", 2),
    Sketcher.Constraint("Horizontal", 3),
    Sketcher.Constraint("Vertical", 4),
    Sketcher.Constraint("Horizontal", 5),
    Sketcher.Constraint("Vertical", 6),
    Sketcher.Constraint("Horizontal", 7),
    Sketcher.Constraint("Vertical", 8),
    Sketcher.Constraint("Horizontal", 9),
    Sketcher.Constraint("Vertical", 10),
    Sketcher.Constraint("Horizontal", 11),
    Sketcher.Constraint("Symmetric", 5, 2, 8, 2, -1, 1),
    Sketcher.Constraint("Symmetric", 4, 2, 9, 2, -2),
    Sketcher.Constraint("Horizontal", 7, 2, 10, 2),
    Sketcher.Constraint("Vertical", 2, 2, 5, 2),
    Sketcher.Constraint("Vertical", 3, 2, 8, 2),
    Sketcher.Constraint("DistanceX", 1, 1, 1, 2, 180.0),
    Sketcher.Constraint("DistanceX", 5, 1, 5, 2, 32.0),
    Sketcher.Constraint("DistanceY", 0, 1, 0, 2, 10.0),
    Sketcher.Constraint("DistanceY", 4, 1, 4, 2, 7.0),
    Sketcher.Constraint("DistanceY", 0, 2, -1, 1, 50.0),
])
pad5 = body.newObject("PartDesign::Pad", "Pad004")
pad5.Profile = sketch18
pad5.Length = 7

sketch19 = body.newObject("Sketcher::SketchObject", "Sketch018")
sketch19.AttachmentSupport = (doc.getObject("XZ_Plane"), [""])
sketch19.MapMode = "FlatFace"
sketch19.addGeometry([
    Part.ArcOfCircle(Part.Circle(Vector(68, -4, 0), Vector(0, 0, 1), 2), math.radians(90), math.radians(270)),
    Part.LineSegment(Vector(68, -2, 0), Vector(78, -2, 0)),
    Part.ArcOfCircle(Part.Circle(Vector(78, -4, 0), Vector(0, 0, 1), 2), math.radians(-90), math.radians(90)),
    Part.LineSegment(Vector(78, -6, 0), Vector(68, -6, 0)),
    Part.LineSegment(Vector(78, -58, 0), Vector(68, -58, 0)),
    Part.ArcOfCircle(Part.Circle(Vector(68, -56, 0), Vector(0, 0, 1), 2), math.radians(90), math.radians(270)),
    Part.LineSegment(Vector(68, -54, 0), Vector(78, -54, 0)),
    Part.ArcOfCircle(Part.Circle(Vector(78, -56, 0), Vector(0, 0, 1), 2), math.radians(-90), math.radians(90)),
    Part.ArcOfCircle(Part.Circle(Vector(-68, -56, 0), Vector(0, 0, 1), 2), math.radians(-90), math.radians(90)),
    Part.LineSegment(Vector(-68, -58, 0), Vector(-78, -58, 0)),
    Part.ArcOfCircle(Part.Circle(Vector(-78, -56, 0), Vector(0, 0, 1), 2), math.radians(90), math.radians(270)),
    Part.LineSegment(Vector(-78, -54, 0), Vector(-68, -54, 0)),
    Part.LineSegment(Vector(-78, -2, 0), Vector(-68, -2, 0)),
    Part.ArcOfCircle(Part.Circle(Vector(-68, -4, 0), Vector(0, 0, 1), 2), math.radians(-90), math.radians(90)),
    Part.LineSegment(Vector(-68, -6, 0), Vector(-78, -6, 0)),
    Part.ArcOfCircle(Part.Circle(Vector(-78, -4, 0), Vector(0, 0, 1), 2), math.radians(90), math.radians(270)),
], False)
sketch19.addConstraint([
    Sketcher.Constraint("Tangent", 0, 1, 1, 1),
    Sketcher.Constraint("Tangent", 1, 2, 2, 2),
    Sketcher.Constraint("Tangent", 2, 1, 3, 1),
    Sketcher.Constraint("Tangent", 3, 2, 0, 2),
    Sketcher.Constraint("Tangent", 4, 2, 5, 2),
    Sketcher.Constraint("Tangent", 5, 1, 6, 1),
    Sketcher.Constraint("Tangent", 6, 2, 7, 2),
    Sketcher.Constraint("Tangent", 7, 1, 4, 1),
    Sketcher.Constraint("Tangent", 8, 1, 9, 1),
    Sketcher.Constraint("Tangent", 9, 2, 10, 2),
    Sketcher.Constraint("Tangent", 10, 1, 11, 1),
    Sketcher.Constraint("Tangent", 11, 2, 8, 2),
    Sketcher.Constraint("Tangent", 12, 2, 13, 2),
    Sketcher.Constraint("Tangent", 13, 1, 14, 1),
    Sketcher.Constraint("Tangent", 14, 2, 15, 2),
    Sketcher.Constraint("Tangent", 15, 1, 12, 1),
    Sketcher.Constraint("Horizontal", 1),
    Sketcher.Constraint("Horizontal", 3),
    Sketcher.Constraint("Horizontal", 4),
    Sketcher.Constraint("Horizontal", 6),
    Sketcher.Constraint("Horizontal", 9),
    Sketcher.Constraint("Horizontal", 11),
    Sketcher.Constraint("Horizontal", 12),
    Sketcher.Constraint("Horizontal", 14),
    Sketcher.Constraint("Equal", 2, 5),
    Sketcher.Constraint("Equal", 7, 8),
    Sketcher.Constraint("Equal", 10, 13),
    Sketcher.Constraint("Symmetric", 5, 3, 8, 3, -2),
    Sketcher.Constraint("Symmetric", 0, 3, 13, 3, -2),
    Sketcher.Constraint("Vertical", 0, 3, 5, 3),
    Sketcher.Constraint("Vertical", 2, 3, 7, 3),
    Sketcher.Constraint("Vertical", 10, 3, 15, 3),
    Sketcher.Constraint("Equal", 6, 9),
    Sketcher.Constraint("Radius", 0, 2.0),
    Sketcher.Constraint("DistanceX", 1, 1, 1, 2, 10.0),
    Sketcher.Constraint("DistanceX", -1, 1, 0, 3, 68.0),
    Sketcher.Constraint("DistanceY", 0, 3, -1, 1, 4.0),
    Sketcher.Constraint("DistanceY", 5, 3, -1, 1, 56.0),
])
pocket13 = body.newObject("PartDesign::Pocket", "Pocket012")
pocket13.Profile = sketch19
pocket13.Length = 10
pocket13.Reversed = True
doc.recompute()

chamfer2 = body.newObject("PartDesign::Chamfer", "Chamfer001")
chamfer2.Base = (pocket13, edges_at(pocket13, [
    (-90, -3.5, -60),
    (90, -3.5, -60),
    (90, -3.5, 0),
    (-90, -3.5, 0),
]))
chamfer2.Size = 3

sketch20 = body.newObject("Sketcher::SketchObject", "Sketch019")
sketch20.AttachmentSupport = (doc.getObject("YZ_Plane"), [""])
sketch20.MapMode = "FlatFace"
sketch20.addGeometry([
    Part.LineSegment(Vector(-3, 0, 0), Vector(-3.5, 0, 0)),
    Part.LineSegment(Vector(-3.5, 0, 0), Vector(-3.5, -15, 0)),
    Part.LineSegment(Vector(-3.5, -15, 0), Vector(-3, -15, 0)),
    Part.LineSegment(Vector(-3, -15, 0), Vector(-3, 0, 0)),
], False)
sketch20.addConstraint([
    Sketcher.Constraint("Coincident", 0, 2, 1, 1),
    Sketcher.Constraint("Coincident", 1, 2, 2, 1),
    Sketcher.Constraint("Coincident", 2, 2, 3, 1),
    Sketcher.Constraint("Coincident", 3, 2, 0, 1),
    Sketcher.Constraint("Horizontal", 0),
    Sketcher.Constraint("Vertical", 1),
    Sketcher.Constraint("Horizontal", 2),
    Sketcher.Constraint("Vertical", 3),
    Sketcher.Constraint("PointOnObject", 0, 2, -1),
    Sketcher.Constraint("DistanceY", 1, 2, 1, 1, 15.0),
    Sketcher.Constraint("DistanceX", 0, 2, 0, 1, 0.5),
    Sketcher.Constraint("DistanceX", 2, 2, -1, 1, 3.0),
])
groove2 = body.newObject("PartDesign::Groove", "Groove001")
groove2.Profile = sketch20
groove2.ReferenceAxis = (sketch20, ["H_Axis"])
groove2.Angle = 360

sketch21 = body.newObject("Sketcher::SketchObject", "Sketch020")
sketch21.AttachmentSupport = (doc.getObject("XZ_Plane"), [""])
sketch21.MapMode = "FlatFace"
sketch21.AttachmentOffset = App.Placement(Vector(0, 0, 3), App.Rotation())
sketch21.addGeometry([
    Part.Circle(Vector(0, 0, 0), Vector(0, 0, 1), 16),
    Part.Circle(Vector(0, 0, 0), Vector(0, 0, 1), 15),
], False)
sketch21.addConstraint([
    Sketcher.Constraint("Coincident", 0, 3, -1, 1),
    Sketcher.Constraint("Coincident", 1, 3, -1, 1),
    Sketcher.Constraint("Diameter", 0, 32.0),
    Sketcher.Constraint("Diameter", 1, 30.0),
])
pad6 = body.newObject("PartDesign::Pad", "Pad005")
pad6.Profile = sketch21
pad6.Length = 1.5

sketch22 = body.newObject("Sketcher::SketchObject", "Sketch021")
sketch22.AttachmentSupport = (doc.getObject("XZ_Plane"), [""])
sketch22.MapMode = "FlatFace"
sketch22.addGeometry([
    Part.LineSegment(Vector(-107, -60, 0), Vector(-107, 0, 0)),
    Part.LineSegment(Vector(-107, 0, 0), Vector(-87, 0, 0)),
    Part.LineSegment(Vector(-87, 0, 0), Vector(-87, -60, 0)),
    Part.LineSegment(Vector(-87, -60, 0), Vector(-107, -60, 0)),
    Part.LineSegment(Vector(87, -60, 0), Vector(87, 0, 0)),
    Part.LineSegment(Vector(87, 0, 0), Vector(107, 0, 0)),
    Part.LineSegment(Vector(107, 0, 0), Vector(107, -60, 0)),
    Part.LineSegment(Vector(107, -60, 0), Vector(87, -60, 0)),
], False)
sketch22.addConstraint([
    Sketcher.Constraint("Coincident", 0, 2, 1, 1),
    Sketcher.Constraint("Coincident", 1, 2, 2, 1),
    Sketcher.Constraint("Coincident", 2, 2, 3, 1),
    Sketcher.Constraint("Coincident", 3, 2, 0, 1),
    Sketcher.Constraint("Coincident", 4, 2, 5, 1),
    Sketcher.Constraint("Coincident", 5, 2, 6, 1),
    Sketcher.Constraint("Coincident", 6, 2, 7, 1),
    Sketcher.Constraint("Coincident", 7, 2, 4, 1),
    Sketcher.Constraint("Vertical", 0),
    Sketcher.Constraint("Horizontal", 1),
    Sketcher.Constraint("Vertical", 2),
    Sketcher.Constraint("Horizontal", 3),
    Sketcher.Constraint("Vertical", 4),
    Sketcher.Constraint("Horizontal", 5),
    Sketcher.Constraint("Vertical", 6),
    Sketcher.Constraint("Horizontal", 7),
    Sketcher.Constraint("Symmetric", 1, 2, 4, 2, -1, 1),
    Sketcher.Constraint("Symmetric", 0, 2, 5, 2, -2),
    Sketcher.Constraint("Horizontal", 3, 2, 6, 2),
    Sketcher.Constraint("DistanceX", 1, 1, 1, 2, 20.0),
    Sketcher.Constraint("DistanceY", 0, 1, 0, 2, 60.0),
    Sketcher.Constraint("DistanceX", 0, 2, -1, 1, 107.0),
])
pad7 = body.newObject("PartDesign::Pad", "Pad006")
pad7.Profile = sketch22
pad7.Length = 7
doc.recompute()

chamfer3 = body.newObject("PartDesign::Chamfer", "Chamfer002")
chamfer3.Base = (pad7, edges_at(pad7, [
    (-107, -3.5, 0),
    (-107, -3.5, -60),
    (107, -3.5, -60),
    (107, -3.5, 0),
]))
chamfer3.Size = 2

doc.recompute()
